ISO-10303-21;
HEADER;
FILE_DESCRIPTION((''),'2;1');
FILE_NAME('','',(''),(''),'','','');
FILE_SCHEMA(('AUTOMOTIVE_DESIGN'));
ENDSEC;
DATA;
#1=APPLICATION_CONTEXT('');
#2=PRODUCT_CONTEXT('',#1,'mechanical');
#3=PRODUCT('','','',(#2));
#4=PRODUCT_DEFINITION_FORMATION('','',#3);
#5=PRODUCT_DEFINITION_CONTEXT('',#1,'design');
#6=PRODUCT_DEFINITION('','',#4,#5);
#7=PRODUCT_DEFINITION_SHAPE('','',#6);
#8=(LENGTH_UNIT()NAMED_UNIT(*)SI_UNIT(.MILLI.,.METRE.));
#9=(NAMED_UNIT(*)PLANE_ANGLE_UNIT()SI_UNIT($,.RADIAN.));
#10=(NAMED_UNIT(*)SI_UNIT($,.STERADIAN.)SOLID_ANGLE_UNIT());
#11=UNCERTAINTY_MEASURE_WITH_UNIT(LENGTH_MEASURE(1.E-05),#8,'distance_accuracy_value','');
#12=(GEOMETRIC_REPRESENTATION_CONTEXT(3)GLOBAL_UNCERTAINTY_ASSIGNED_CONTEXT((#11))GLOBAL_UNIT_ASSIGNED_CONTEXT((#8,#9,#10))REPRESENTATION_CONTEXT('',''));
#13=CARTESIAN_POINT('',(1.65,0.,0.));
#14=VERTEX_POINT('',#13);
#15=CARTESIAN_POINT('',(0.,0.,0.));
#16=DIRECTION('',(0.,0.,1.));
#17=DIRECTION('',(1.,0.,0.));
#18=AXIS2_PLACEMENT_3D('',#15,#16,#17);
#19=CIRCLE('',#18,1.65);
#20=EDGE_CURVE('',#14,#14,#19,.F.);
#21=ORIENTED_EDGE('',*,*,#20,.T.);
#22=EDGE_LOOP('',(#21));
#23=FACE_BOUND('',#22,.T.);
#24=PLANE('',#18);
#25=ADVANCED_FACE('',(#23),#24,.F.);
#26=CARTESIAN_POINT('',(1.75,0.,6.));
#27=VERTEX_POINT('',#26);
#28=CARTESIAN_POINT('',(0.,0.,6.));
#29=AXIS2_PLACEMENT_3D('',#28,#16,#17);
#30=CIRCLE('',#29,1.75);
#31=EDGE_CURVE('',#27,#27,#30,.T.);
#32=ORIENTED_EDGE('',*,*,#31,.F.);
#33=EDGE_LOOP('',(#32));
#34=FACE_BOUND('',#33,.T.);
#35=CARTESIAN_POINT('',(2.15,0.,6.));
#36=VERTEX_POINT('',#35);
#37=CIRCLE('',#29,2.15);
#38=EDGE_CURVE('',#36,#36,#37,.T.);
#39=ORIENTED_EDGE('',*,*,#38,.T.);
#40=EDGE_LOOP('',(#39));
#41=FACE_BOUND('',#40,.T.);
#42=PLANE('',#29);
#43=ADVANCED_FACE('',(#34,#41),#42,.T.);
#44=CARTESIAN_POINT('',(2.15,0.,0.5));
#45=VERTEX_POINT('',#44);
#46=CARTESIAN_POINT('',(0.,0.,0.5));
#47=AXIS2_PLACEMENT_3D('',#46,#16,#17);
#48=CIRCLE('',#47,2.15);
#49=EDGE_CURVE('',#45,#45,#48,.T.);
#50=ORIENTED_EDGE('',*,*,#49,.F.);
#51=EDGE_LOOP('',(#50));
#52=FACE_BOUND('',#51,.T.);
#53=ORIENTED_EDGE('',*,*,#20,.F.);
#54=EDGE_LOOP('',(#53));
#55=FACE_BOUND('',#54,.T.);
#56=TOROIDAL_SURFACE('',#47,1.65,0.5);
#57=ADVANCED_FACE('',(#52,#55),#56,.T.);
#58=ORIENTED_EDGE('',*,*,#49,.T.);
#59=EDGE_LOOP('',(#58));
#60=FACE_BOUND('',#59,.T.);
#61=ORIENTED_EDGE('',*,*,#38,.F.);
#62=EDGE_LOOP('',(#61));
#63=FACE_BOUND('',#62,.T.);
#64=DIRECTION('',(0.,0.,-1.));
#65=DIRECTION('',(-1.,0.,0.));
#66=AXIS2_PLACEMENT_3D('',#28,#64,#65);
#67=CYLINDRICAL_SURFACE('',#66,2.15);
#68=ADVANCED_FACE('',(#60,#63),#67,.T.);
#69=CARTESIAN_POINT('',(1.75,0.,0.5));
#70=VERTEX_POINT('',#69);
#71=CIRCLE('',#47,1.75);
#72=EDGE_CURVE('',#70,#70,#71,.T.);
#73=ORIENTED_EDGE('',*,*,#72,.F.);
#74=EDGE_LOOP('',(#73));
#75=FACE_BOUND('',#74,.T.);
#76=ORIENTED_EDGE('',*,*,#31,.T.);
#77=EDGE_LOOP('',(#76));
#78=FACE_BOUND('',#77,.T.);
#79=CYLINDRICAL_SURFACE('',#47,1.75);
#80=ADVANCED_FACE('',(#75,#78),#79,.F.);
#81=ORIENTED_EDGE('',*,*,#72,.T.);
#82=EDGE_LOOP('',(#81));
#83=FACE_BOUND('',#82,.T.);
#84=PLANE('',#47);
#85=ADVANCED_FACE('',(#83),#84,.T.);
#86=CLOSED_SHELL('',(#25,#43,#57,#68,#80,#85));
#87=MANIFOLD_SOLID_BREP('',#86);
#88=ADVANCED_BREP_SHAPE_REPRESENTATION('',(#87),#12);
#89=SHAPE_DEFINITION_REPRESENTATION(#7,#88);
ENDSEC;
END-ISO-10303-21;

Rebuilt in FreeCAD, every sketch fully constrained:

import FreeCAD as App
import Part
import Sketcher
Q = App.Units.Quantity


def edges_at(feature, points):
    """Names of the edges that pass closest to the given points."""
    edges = feature.Shape.Edges
    near = lambda p: min(range(len(edges)), key=lambda i: edges[i].distToShape(Part.Vertex(*p))[0])
    return sorted({f"Edge{near(p) + 1}" for p in points})

doc = App.newDocument("Part")
body = doc.addObject("PartDesign::Body", "Body")

# Sketch on XY plane
sketch1 = body.newObject("Sketcher::SketchObject", "Sketch")
sketch1.AttachmentSupport = (doc.getObject("XY_Plane"), [""])
sketch1.MapMode = "FlatFace"
sketch1.addGeometry(Part.Circle(App.Vector(0, 0, 0), App.Vector(0, 0, 1), 2.1), False)
sketch1.addConstraint(Sketcher.Constraint("Coincident", 0, 3, -1, 1))
sketch1.addConstraint(Sketcher.Constraint("Diameter", 0, Q("4.3 mm")))
pad1 = body.newObject("PartDesign::Pad", "Pad")
pad1.Profile = sketch1
pad1.Length = 6

# Sketch on XY plane
sketch2 = body.newObject("Sketcher::SketchObject", "Sketch001")
sketch2.AttachmentSupport = (doc.getObject("XY_Plane"), [""])
sketch2.MapMode = "FlatFace"
sketch2.AttachmentOffset = App.Placement(App.Vector(0, 0, 6), App.Rotation())
sketch2.addGeometry(Part.Circle(App.Vector(0, 0, 0), App.Vector(0, 0, 1), 1.8), False)
sketch2.addConstraint(Sketcher.Constraint("Coincident", 0, 3, -1, 1))
sketch2.addConstraint(Sketcher.Constraint("Diameter", 0, Q("3.5 mm")))
pocket1 = body.newObject("PartDesign::Pocket", "Pocket")
pocket1.Profile = sketch2
pocket1.Length = 5.5
doc.recompute()

fillet = body.newObject("PartDesign::Fillet", "Fillet")
fillet.Base = (pocket1, edges_at(pocket1, [(-2.15, 0, 0)]))
fillet.Radius = 0.5

doc.recompute()
